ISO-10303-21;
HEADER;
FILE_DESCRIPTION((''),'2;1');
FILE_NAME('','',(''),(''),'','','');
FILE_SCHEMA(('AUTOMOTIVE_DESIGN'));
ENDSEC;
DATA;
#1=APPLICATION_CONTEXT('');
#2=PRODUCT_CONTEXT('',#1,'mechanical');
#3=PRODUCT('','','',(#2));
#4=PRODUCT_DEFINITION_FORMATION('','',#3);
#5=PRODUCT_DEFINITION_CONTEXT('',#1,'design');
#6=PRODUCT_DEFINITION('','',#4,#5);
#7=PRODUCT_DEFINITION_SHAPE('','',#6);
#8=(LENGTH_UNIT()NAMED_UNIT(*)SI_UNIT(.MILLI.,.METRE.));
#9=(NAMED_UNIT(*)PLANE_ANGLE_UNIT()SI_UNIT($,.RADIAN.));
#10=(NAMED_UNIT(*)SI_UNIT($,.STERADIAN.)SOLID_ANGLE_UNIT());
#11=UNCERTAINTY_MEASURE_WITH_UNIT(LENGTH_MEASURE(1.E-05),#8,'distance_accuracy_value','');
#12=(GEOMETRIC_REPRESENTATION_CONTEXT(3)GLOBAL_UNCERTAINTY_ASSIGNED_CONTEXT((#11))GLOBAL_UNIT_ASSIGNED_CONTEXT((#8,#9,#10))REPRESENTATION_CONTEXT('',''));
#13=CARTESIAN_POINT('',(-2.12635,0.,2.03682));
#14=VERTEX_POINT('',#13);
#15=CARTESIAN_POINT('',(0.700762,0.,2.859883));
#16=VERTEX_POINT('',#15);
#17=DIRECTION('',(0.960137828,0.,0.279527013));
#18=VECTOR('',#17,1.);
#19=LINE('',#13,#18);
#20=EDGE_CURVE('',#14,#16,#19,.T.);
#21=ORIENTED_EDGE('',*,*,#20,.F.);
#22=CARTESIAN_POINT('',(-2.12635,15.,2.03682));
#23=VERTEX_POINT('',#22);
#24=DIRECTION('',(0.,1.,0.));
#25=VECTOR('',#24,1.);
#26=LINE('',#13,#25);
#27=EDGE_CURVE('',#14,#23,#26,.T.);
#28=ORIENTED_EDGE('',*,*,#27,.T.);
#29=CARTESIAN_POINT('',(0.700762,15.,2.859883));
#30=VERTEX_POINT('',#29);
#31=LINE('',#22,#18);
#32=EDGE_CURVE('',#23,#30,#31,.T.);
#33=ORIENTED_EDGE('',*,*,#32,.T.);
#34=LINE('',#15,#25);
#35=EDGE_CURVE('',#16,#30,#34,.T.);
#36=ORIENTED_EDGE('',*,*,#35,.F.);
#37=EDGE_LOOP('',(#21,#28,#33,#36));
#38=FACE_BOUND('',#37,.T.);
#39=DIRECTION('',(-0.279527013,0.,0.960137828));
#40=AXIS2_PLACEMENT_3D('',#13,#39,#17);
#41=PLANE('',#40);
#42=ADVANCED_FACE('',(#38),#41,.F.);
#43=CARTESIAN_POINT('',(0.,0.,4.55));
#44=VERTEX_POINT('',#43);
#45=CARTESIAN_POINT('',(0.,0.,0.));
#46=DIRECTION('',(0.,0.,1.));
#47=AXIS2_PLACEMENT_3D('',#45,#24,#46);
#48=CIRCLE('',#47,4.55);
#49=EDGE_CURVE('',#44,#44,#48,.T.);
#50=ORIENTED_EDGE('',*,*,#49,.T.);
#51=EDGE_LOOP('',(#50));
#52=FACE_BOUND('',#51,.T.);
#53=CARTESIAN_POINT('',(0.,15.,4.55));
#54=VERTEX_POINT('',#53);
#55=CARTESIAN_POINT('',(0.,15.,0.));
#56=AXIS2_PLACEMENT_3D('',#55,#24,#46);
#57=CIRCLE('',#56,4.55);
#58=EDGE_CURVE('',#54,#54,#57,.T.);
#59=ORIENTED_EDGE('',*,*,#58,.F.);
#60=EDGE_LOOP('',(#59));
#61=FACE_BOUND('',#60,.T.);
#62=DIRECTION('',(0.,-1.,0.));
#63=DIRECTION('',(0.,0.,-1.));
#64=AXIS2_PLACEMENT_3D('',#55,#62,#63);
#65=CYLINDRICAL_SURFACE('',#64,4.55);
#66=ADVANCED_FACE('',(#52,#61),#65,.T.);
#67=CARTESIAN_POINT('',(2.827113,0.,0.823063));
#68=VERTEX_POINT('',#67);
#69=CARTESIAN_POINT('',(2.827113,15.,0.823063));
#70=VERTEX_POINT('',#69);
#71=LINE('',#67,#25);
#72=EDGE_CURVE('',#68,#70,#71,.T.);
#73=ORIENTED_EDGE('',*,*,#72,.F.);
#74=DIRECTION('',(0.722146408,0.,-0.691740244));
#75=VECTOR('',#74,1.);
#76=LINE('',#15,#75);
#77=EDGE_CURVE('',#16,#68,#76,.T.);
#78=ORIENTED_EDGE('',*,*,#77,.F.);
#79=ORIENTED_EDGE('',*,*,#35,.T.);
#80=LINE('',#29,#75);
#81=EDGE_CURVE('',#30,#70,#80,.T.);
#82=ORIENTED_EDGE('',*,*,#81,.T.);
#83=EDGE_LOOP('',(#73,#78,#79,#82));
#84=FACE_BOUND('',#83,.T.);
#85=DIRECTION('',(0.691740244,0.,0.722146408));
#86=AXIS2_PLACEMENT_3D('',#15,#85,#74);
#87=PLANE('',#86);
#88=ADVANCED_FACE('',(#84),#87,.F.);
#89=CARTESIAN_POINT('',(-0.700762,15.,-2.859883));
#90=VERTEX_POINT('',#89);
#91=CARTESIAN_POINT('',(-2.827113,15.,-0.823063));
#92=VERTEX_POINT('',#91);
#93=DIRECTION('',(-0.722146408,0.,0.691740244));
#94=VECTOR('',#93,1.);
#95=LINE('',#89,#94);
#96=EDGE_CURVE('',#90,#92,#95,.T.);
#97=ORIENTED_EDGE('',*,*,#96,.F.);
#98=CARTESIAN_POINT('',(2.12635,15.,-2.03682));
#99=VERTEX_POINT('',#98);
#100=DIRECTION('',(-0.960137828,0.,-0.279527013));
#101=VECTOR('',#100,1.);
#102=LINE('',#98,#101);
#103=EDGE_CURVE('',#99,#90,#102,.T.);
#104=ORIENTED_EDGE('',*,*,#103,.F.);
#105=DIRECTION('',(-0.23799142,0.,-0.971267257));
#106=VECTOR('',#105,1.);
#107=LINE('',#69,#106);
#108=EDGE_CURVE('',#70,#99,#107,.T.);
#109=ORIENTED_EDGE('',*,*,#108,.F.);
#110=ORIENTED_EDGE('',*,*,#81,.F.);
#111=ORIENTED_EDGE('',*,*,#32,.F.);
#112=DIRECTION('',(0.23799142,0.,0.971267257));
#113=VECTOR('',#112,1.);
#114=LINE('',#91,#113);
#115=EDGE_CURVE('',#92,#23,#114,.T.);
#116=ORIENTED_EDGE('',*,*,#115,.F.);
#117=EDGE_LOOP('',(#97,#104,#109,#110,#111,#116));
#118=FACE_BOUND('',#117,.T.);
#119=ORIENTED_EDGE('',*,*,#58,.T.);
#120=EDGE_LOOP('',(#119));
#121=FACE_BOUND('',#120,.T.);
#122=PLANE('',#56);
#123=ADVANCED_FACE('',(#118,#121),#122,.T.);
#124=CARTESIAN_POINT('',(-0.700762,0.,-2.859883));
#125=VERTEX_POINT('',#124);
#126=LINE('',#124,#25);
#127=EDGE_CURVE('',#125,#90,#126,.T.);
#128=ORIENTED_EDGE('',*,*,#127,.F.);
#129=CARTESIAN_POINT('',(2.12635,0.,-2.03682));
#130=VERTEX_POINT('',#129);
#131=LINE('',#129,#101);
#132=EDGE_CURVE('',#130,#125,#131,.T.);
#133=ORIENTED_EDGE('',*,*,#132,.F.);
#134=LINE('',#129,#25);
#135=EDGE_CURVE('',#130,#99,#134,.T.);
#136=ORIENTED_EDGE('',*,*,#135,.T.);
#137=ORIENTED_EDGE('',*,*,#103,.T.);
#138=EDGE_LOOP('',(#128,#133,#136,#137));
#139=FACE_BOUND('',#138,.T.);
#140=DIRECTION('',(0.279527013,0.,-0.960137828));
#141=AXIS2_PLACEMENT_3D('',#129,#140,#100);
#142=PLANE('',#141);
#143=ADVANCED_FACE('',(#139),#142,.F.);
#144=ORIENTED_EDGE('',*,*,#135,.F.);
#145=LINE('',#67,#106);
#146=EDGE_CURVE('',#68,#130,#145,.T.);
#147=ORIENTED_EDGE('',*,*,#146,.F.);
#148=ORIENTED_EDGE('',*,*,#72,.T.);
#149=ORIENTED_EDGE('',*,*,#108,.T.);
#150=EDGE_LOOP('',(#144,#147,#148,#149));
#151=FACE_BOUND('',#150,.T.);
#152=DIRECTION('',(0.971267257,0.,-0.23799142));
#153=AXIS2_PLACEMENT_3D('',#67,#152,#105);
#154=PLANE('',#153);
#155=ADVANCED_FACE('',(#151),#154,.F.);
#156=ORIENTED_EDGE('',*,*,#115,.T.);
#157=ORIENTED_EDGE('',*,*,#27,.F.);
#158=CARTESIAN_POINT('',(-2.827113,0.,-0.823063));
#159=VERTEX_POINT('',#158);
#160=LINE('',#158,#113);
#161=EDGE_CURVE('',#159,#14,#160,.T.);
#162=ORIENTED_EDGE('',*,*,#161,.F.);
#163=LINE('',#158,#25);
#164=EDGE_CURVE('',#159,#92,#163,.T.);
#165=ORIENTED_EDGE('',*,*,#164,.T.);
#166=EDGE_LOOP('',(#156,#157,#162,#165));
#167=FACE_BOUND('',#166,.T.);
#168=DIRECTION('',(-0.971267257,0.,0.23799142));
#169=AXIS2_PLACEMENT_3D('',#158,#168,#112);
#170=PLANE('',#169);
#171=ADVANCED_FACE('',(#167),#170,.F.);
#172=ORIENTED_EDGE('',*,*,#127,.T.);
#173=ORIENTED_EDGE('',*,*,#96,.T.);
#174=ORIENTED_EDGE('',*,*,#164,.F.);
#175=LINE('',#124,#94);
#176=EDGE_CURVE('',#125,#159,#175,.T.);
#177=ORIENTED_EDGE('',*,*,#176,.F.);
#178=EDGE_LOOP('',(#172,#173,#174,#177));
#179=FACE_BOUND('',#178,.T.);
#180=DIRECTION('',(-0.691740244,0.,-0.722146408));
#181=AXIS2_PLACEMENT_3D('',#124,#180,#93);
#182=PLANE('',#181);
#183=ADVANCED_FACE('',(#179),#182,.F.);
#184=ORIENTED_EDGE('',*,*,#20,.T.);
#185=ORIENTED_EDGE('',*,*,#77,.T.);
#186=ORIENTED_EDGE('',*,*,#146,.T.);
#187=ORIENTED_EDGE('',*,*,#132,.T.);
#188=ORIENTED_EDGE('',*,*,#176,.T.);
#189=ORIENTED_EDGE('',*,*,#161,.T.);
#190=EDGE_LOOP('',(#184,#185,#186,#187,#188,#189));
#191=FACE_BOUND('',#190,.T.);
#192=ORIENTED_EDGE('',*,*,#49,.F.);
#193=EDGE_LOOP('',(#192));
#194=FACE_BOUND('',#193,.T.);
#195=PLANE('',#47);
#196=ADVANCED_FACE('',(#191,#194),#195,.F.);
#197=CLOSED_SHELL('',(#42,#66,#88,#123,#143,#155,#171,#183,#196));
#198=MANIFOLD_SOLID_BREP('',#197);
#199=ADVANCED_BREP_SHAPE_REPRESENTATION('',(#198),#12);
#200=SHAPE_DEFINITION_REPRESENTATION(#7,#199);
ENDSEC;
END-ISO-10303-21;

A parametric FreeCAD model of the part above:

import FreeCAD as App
import Part
import Sketcher
from FreeCAD import Vector
Q = App.Units.Quantity


def add_polygon(sketch, points):
    """Adds a closed chain of lines whose ends are joined by coincident constraints."""
    first, n = sketch.GeometryCount, len(points)
    for a, b in zip(points, points[1:] + points[:1]):
        sketch.addGeometry(Part.LineSegment(App.Vector(*a, 0), App.Vector(*b, 0)), False)
    for i in range(n):
        sketch.addConstraint(Sketcher.Constraint("Coincident", first + i, 2, first + (i + 1) % n, 1))

doc = App.newDocument("Part")
body = doc.addObject("PartDesign::Body", "Body")

# Sketch on XZ plane
sketch1 = doc.addObject("Sketcher::SketchObject", "Sketch")
body.addObject(sketch1)
sketch1.AttachmentSupport = (doc.XZ_Plane, [""])
sketch1.MapMode = "FlatFace"
sketch1.addGeometry(Part.Circle(Vector(0, 0, 0), Vector(0, 0, 1), 4.55), False)
sketch1.addConstraint([
    Sketcher.Constraint("Coincident", 0, 3, -1, 1),
    Sketcher.Constraint("Diameter", 0, Q("9.1 mm")),
])
pad1 = doc.addObject("PartDesign::Pad", "Pad")
body.addObject(pad1)
pad1.Profile = sketch1
pad1.Length = 15
pad1.Reversed = True

# Sketch on XZ plane
sketch2 = doc.addObject("Sketcher::SketchObject", "Sketch001")
body.addObject(sketch2)
sketch2.AttachmentSupport = (doc.XZ_Plane, [""])
sketch2.MapMode = "FlatFace"
sketch2.AttachmentOffset = App.Placement(Vector(0, 0, -15), App.Rotation())
add_polygon(sketch2, [(-2.12635, 2.03682), (0.700762, 2.859883), (2.827113, 0.823063), (2.12635, -2.03682), (-0.700762, -2.859883), (-2.827113, -0.823063)])  # lines 0-5
sketch2.addConstraint([
    Sketcher.Constraint("Symmetric", 0, 2, 3, 2, -1, 1),
    Sketcher.Constraint("Symmetric", 1, 2, 4, 2, -1, 1),
    Sketcher.Constraint("Symmetric", 2, 2, 5, 2, -1, 1),
    Sketcher.Constraint("Equal", 0, 1),
    Sketcher.Constraint("Equal", 1, 2),
    Sketcher.Constraint("DistanceX", 5, 2, 2, 2, Q("4.252701 mm")),
    Sketcher.Constraint("DistanceY", 2, 2, -1, 1, Q("2.03682 mm")),
    Sketcher.Constraint("DistanceX", 0, 2, 1, 2, Q("2.12635 mm")),
    Sketcher.Constraint("DistanceY", 1, 2, 0, 2, Q("2.03682 mm")),
])
pocket1 = doc.addObject("PartDesign::Pocket", "Pocket")
body.addObject(pocket1)
pocket1.Profile = sketch2
pocket1.Length = 15
pocket1.Reversed = True

doc.recompute()
